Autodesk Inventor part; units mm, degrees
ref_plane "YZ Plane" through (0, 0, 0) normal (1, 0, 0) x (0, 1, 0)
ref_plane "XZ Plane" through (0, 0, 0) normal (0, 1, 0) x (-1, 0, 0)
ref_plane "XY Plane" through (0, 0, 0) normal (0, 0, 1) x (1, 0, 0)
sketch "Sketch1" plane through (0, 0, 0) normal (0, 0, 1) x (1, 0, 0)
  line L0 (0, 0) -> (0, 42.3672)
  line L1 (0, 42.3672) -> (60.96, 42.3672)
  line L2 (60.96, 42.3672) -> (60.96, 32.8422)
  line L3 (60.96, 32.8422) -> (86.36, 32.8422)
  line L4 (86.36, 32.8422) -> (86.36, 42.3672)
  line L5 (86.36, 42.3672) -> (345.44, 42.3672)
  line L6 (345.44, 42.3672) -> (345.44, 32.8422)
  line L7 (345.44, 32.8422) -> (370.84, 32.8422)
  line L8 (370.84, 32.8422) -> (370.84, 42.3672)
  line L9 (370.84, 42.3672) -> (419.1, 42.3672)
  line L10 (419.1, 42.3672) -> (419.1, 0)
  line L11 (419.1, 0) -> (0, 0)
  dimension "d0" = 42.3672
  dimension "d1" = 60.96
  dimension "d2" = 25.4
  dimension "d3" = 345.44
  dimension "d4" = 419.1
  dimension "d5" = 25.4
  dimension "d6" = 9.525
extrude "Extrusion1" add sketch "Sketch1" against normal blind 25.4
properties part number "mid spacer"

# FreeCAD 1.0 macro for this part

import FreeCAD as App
import Part
import Sketcher

V = App.Vector
Q = App.Units.Quantity

doc = App.newDocument("Part")
params = doc.addObject("Spreadsheet::Sheet", "Params")
for row, (alias, value) in enumerate([
    ("sketch1_width", "1 in"),
    ("sketch1_width2", "16.5 in"),
    ("sketch1_width3", "2.4 in"),
    ("sketch1_height", "1.668 in"),
    ("sketch1_height2", "0.375 in"),
    ("pad1_length", "1 in"),
], start=1):
    params.set(f"A{row}", alias)
    params.set(f"B{row}", "=" + value)
    params.setAlias(f"B{row}", alias)

body = doc.addObject("PartDesign::Body", "Body")

# Sketch on XY plane
sketch1 = body.newObject("Sketcher::SketchObject", "Sketch")
sketch1.AttachmentSupport = (doc.getObject("XY_Plane"), [""])
sketch1.MapMode = "FlatFace"
sketch1.addGeometry([
    Part.LineSegment(V(0, 42, 0), V(0, 0, 0)),  # 0
    Part.LineSegment(V(0, 0, 0), V(419, 0, 0)),  # 1
    Part.LineSegment(V(419, 0, 0), V(419, 42, 0)),  # 2
    Part.LineSegment(V(419, 42, 0), V(371, 42, 0)),  # 3
    Part.LineSegment(V(371, 42, 0), V(371, 33, 0)),  # 4
    Part.LineSegment(V(371, 33, 0), V(345, 33, 0)),  # 5
    Part.LineSegment(V(345, 33, 0), V(345, 42, 0)),  # 6
    Part.LineSegment(V(345, 42, 0), V(86, 42, 0)),  # 7
    Part.LineSegment(V(86, 42, 0), V(86, 33, 0)),  # 8
    Part.LineSegment(V(86, 33, 0), V(61, 33, 0)),  # 9
    Part.LineSegment(V(61, 33, 0), V(61, 42, 0)),  # 10
    Part.LineSegment(V(61, 42, 0), V(0, 42, 0)),  # 11
], False)
sketch1.addConstraint([
    Sketcher.Constraint("Coincident", 0, 2, 1, 1),
    Sketcher.Constraint("Coincident", 1, 2, 2, 1),
    Sketcher.Constraint("Coincident", 2, 2, 3, 1),
    Sketcher.Constraint("Coincident", 3, 2, 4, 1),
    Sketcher.Constraint("Coincident", 4, 2, 5, 1),
    Sketcher.Constraint("Coincident", 5, 2, 6, 1),
    Sketcher.Constraint("Coincident", 6, 2, 7, 1),
    Sketcher.Constraint("Coincident", 7, 2, 8, 1),
    Sketcher.Constraint("Coincident", 8, 2, 9, 1),
    Sketcher.Constraint("Coincident", 9, 2, 10, 1),
    Sketcher.Constraint("Coincident", 10, 2, 11, 1),
    Sketcher.Constraint("Coincident", 11, 2, 0, 1),
    Sketcher.Constraint("Vertical", 0),
    Sketcher.Constraint("Horizontal", 1),
    Sketcher.Constraint("Vertical", 2),
    Sketcher.Constraint("Horizontal", 3),
    Sketcher.Constraint("Vertical", 4),
    Sketcher.Constraint("Horizontal", 5),
    Sketcher.Constraint("Vertical", 6),
    Sketcher.Constraint("Horizontal", 7),
    Sketcher.Constraint("Vertical", 8),
    Sketcher.Constraint("Horizontal", 9),
    Sketcher.Constraint("Vertical", 10),
    Sketcher.Constraint("Horizontal", 11),
    Sketcher.Constraint("Coincident", 0, 2, -1, 1),
    Sketcher.Constraint("Horizontal", 3, 2, 6, 2),
    Sketcher.Constraint("Horizontal", 5, 2, 8, 2),
    Sketcher.Constraint("Horizontal", 7, 2, 10, 2),
    Sketcher.Constraint("Equal", 5, 9),
    Sketcher.Constraint("DistanceX", 5, 2, 5, 1, Q("1 in")),
    Sketcher.Constraint("DistanceX", 1, 1, 1, 2, Q("16.5 in")),
    Sketcher.Constraint("DistanceX", 11, 2, 11, 1, Q("2.4 in")),
    Sketcher.Constraint("DistanceX", -1, 1, 5, 2, Q("13.6 in")),
    Sketcher.Constraint("DistanceY", 0, 2, 0, 1, Q("1.668 in")),
    Sketcher.Constraint("DistanceY", 4, 2, 4, 1, Q("0.375 in")),
])
sketch1.setExpression("Constraints[29]", "Params.sketch1_width")
sketch1.setExpression("Constraints[30]", "Params.sketch1_width2")
sketch1.setExpression("Constraints[31]", "Params.sketch1_width3")
sketch1.setExpression("Constraints[33]", "Params.sketch1_height")
sketch1.setExpression("Constraints[34]", "Params.sketch1_height2")
pad1 = body.newObject("PartDesign::Pad", "Pad")
pad1.Profile = sketch1
pad1.setExpression("Length", "Params.pad1_length")
pad1.Reversed = True

doc.recompute()
